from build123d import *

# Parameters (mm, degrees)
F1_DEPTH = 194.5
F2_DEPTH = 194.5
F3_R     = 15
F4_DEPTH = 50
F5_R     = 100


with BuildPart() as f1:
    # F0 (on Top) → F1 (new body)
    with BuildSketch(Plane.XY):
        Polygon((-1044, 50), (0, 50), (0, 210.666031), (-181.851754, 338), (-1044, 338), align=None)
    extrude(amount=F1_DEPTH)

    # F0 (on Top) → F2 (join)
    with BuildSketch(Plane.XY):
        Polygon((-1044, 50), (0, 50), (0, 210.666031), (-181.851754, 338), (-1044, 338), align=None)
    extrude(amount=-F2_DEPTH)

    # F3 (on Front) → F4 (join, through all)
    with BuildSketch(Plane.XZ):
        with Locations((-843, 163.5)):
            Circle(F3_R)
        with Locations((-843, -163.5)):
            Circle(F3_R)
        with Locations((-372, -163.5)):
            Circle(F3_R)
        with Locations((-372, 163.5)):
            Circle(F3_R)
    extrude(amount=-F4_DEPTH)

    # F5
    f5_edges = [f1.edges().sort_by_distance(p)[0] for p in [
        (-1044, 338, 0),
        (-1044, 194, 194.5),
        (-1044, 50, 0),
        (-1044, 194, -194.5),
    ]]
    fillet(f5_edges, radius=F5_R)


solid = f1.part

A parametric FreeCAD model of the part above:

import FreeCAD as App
import Part
import Sketcher
Q = App.Units.Quantity


def edges_at(feature, points):
    """Names of the edges that pass closest to the given points."""
    edges = feature.Shape.Edges
    near = lambda p: min(range(len(edges)), key=lambda i: edges[i].distToShape(Part.Vertex(*p))[0])
    return sorted({f"Edge{near(p) + 1}" for p in points})

doc = App.newDocument("Part")
body = doc.addObject("PartDesign::Body", "Body")

sketch1 = body.newObject("Sketcher::SketchObject", "Sketch")
sketch1.AttachmentSupport = (doc.getObject("XY_Plane"), [""])
sketch1.MapMode = "FlatFace"
sketch1.addGeometry([
    Part.LineSegment(App.Vector(-1044, 50, 0), App.Vector(0, 50, 0)),
    Part.LineSegment(App.Vector(0, 50, 0), App.Vector(0, 211, 0)),
    Part.LineSegment(App.Vector(0, 211, 0), App.Vector(-182, 338, 0)),
    Part.LineSegment(App.Vector(-182, 338, 0), App.Vector(-1044, 338, 0)),
    Part.LineSegment(App.Vector(-1044, 338, 0), App.Vector(-1044, 50, 0)),
], False)
sketch1.addConstraint([
    Sketcher.Constraint("Coincident", 0, 2, 1, 1),
    Sketcher.Constraint("Coincident", 1, 2, 2, 1),
    Sketcher.Constraint("Coincident", 2, 2, 3, 1),
    Sketcher.Constraint("Coincident", 3, 2, 4, 1),
    Sketcher.Constraint("Coincident", 4, 2, 0, 1),
    Sketcher.Constraint("Horizontal", 0),
    Sketcher.Constraint("Vertical", 1),
    Sketcher.Constraint("Horizontal", 3),
    Sketcher.Constraint("Vertical", 4),
    Sketcher.Constraint("PointOnObject", 0, 2, -2),
    Sketcher.Constraint("DistanceX", 0, 1, 0, 2, 1044.0),
    Sketcher.Constraint("DistanceY", 4, 2, 4, 1, 288.0),
    Sketcher.Constraint("Angle", 2, Q("145 deg")),
    Sketcher.Constraint("Distance", 2, 222.0),
    Sketcher.Constraint("DistanceY", -1, 1, 0, 2, 50.0),
])
pad1 = body.newObject("PartDesign::Pad", "Pad")
pad1.Profile = sketch1
pad1.Length = 194.5

sketch2 = body.newObject("Sketcher::SketchObject", "Sketch001")
sketch2.AttachmentSupport = (doc.getObject("XY_Plane"), [""])
sketch2.MapMode = "FlatFace"
sketch2.addGeometry([
    Part.LineSegment(App.Vector(-1044, 50, 0), App.Vector(0, 50, 0)),
    Part.LineSegment(App.Vector(0, 50, 0), App.Vector(0, 211, 0)),
    Part.LineSegment(App.Vector(0, 211, 0), App.Vector(-182, 338, 0)),
    Part.LineSegment(App.Vector(-182, 338, 0), App.Vector(-1044, 338, 0)),
    Part.LineSegment(App.Vector(-1044, 338, 0), App.Vector(-1044, 50, 0)),
], False)
sketch2.addConstraint([
    Sketcher.Constraint("Coincident", 0, 2, 1, 1),
    Sketcher.Constraint("Coincident", 1, 2, 2, 1),
    Sketcher.Constraint("Coincident", 2, 2, 3, 1),
    Sketcher.Constraint("Coincident", 3, 2, 4, 1),
    Sketcher.Constraint("Coincident", 4, 2, 0, 1),
    Sketcher.Constraint("Horizontal", 0),
    Sketcher.Constraint("Vertical", 1),
    Sketcher.Constraint("Horizontal", 3),
    Sketcher.Constraint("Vertical", 4),
    Sketcher.Constraint("PointOnObject", 0, 2, -2),
    Sketcher.Constraint("DistanceX", 0, 1, 0, 2, 1044.0),
    Sketcher.Constraint("DistanceY", 4, 2, 4, 1, 288.0),
    Sketcher.Constraint("Angle", 2, Q("145 deg")),
    Sketcher.Constraint("Distance", 2, 222.0),
    Sketcher.Constraint("DistanceY", -1, 1, 0, 2, 50.0),
])
pad2 = body.newObject("PartDesign::Pad", "Pad001")
pad2.Profile = sketch2
pad2.Length = 194.5
pad2.Reversed = True

sketch3 = body.newObject("Sketcher::SketchObject", "Sketch002")
sketch3.AttachmentSupport = (doc.getObject("XZ_Plane"), [""])
sketch3.MapMode = "FlatFace"
sketch3.addGeometry([
    Part.Circle(App.Vector(-843, 164, 0), App.Vector(0, 0, 1), 15),
    Part.Circle(App.Vector(-843, -164, 0), App.Vector(0, 0, 1), 15),
    Part.Circle(App.Vector(-372, -164, 0), App.Vector(0, 0, 1), 15),
    Part.Circle(App.Vector(-372, 164, 0), App.Vector(0, 0, 1), 15),
], False)
sketch3.addConstraint([
    Sketcher.Constraint("Equal", 0, 1),
    Sketcher.Constraint("Equal", 1, 2),
    Sketcher.Constraint("Equal", 2, 3),
    Sketcher.Constraint("Symmetric", 0, 3, 1, 3, -1),
    Sketcher.Constraint("Symmetric", 2, 3, 3, 3, -1),
    Sketcher.Constraint("Horizontal", 1, 3, 2, 3),
    Sketcher.Constraint("Diameter", 0, 30.0),
    Sketcher.Constraint("DistanceX", 0, 3, -1, 1, 843.0),
    Sketcher.Constraint("DistanceX", 2, 3, -1, 1, 372.0),
    Sketcher.Constraint("DistanceY", 1, 3, 0, 3, 327.0),
])
pad3 = body.newObject("PartDesign::Pad", "Pad002")
pad3.Profile = sketch3
pad3.Type = "UpToLast"
pad3.Reversed = True
doc.recompute()

fillet = body.newObject("PartDesign::Fillet", "Fillet")
fillet.Base = (pad3, edges_at(pad3, [
    (-1044, 338, 0),
    (-1044, 194, 194.5),
    (-1044, 50, 0),
    (-1044, 194, -194.5),
]))
fillet.Radius = 100

doc.recompute()
